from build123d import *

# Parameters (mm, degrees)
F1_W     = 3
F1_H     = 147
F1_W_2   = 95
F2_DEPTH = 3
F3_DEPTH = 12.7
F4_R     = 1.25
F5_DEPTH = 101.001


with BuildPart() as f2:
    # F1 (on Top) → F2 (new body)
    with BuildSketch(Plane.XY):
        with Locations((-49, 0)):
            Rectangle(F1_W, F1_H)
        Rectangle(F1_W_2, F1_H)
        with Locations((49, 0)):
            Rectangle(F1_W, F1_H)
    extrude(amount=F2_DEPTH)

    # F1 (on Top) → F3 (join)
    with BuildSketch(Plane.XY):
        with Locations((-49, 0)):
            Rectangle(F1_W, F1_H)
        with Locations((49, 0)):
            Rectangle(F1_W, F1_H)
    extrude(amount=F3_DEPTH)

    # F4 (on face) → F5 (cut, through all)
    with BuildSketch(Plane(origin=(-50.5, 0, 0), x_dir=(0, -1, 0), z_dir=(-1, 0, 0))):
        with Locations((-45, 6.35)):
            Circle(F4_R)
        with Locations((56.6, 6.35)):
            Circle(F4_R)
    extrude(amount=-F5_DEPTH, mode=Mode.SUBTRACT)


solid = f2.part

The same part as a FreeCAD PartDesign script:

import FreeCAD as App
import Part
import Sketcher
from FreeCAD import Vector
Q = App.Units.Quantity


def add_polygon(sketch, points):
    """Adds a closed chain of lines whose ends are joined by coincident constraints."""
    first, n = sketch.GeometryCount, len(points)
    for a, b in zip(points, points[1:] + points[:1]):
        sketch.addGeometry(Part.LineSegment(App.Vector(*a, 0), App.Vector(*b, 0)), False)
    for i in range(n):
        sketch.addConstraint(Sketcher.Constraint("Coincident", first + i, 2, first + (i + 1) % n, 1))

doc = App.newDocument("Part")
params = doc.addObject("Spreadsheet::Sheet", "Params")
for row, (alias, value) in enumerate([
    ("sketch1_width", "101 mm"),
    ("sketch1_height", "147 mm"),
    ("pad1_length", "3 mm"),
    ("sketch2_width", "3 mm"),
    ("sketch2_height", "147 mm"),
    ("pad2_length", "12.7 mm"),
    ("sketch3_diameter", "2.5 mm"),
], start=1):
    params.set(f"A{row}", alias)
    params.set(f"B{row}", "=" + value)
    params.setAlias(f"B{row}", alias)

body = doc.addObject("PartDesign::Body", "Body")

# Sketch on XY plane
sketch1 = doc.addObject("Sketcher::SketchObject", "Sketch")
body.addObject(sketch1)
sketch1.AttachmentSupport = (doc.XY_Plane, [""])
sketch1.MapMode = "FlatFace"
add_polygon(sketch1, [(-50, 74), (-50, -74), (50, -74), (50, 74)])  # lines 0-3
sketch1.addConstraint([
    Sketcher.Constraint("Vertical", 0),
    Sketcher.Constraint("Horizontal", 1),
    Sketcher.Constraint("Vertical", 2),
    Sketcher.Constraint("Horizontal", 3),
    Sketcher.Constraint("Symmetric", 0, 2, 2, 2, -1, 1),
    Sketcher.Constraint("DistanceX", 1, 1, 1, 2, Q("101 mm")),
    Sketcher.Constraint("DistanceY", 0, 2, 0, 1, Q("147 mm")),
])
sketch1.setExpression("Constraints[9]", "Params.sketch1_width")
sketch1.setExpression("Constraints[10]", "Params.sketch1_height")
pad1 = doc.addObject("PartDesign::Pad", "Pad")
body.addObject(pad1)
pad1.Profile = sketch1
pad1.setExpression("Length", "Params.pad1_length")

# Sketch on XY plane
sketch2 = doc.addObject("Sketcher::SketchObject", "Sketch001")
body.addObject(sketch2)
sketch2.AttachmentSupport = (doc.XY_Plane, [""])
sketch2.MapMode = "FlatFace"
add_polygon(sketch2, [(-50.5, 73.5), (-50.5, -73.5), (-47.5, -73.5), (-47.5, 73.5)])  # lines 0-3
add_polygon(sketch2, [(47.5, 73.5), (47.5, -73.5), (50.5, -73.5), (50.5, 73.5)])  # lines 4-7
sketch2.addConstraint([
    Sketcher.Constraint("Vertical", 0),
    Sketcher.Constraint("Horizontal", 1),
    Sketcher.Constraint("Vertical", 2),
    Sketcher.Constraint("Horizontal", 3),
    Sketcher.Constraint("Vertical", 4),
    Sketcher.Constraint("Horizontal", 5),
    Sketcher.Constraint("Vertical", 6),
    Sketcher.Constraint("Horizontal", 7),
    Sketcher.Constraint("Symmetric", 2, 2, 4, 2, -1, 1),
    Sketcher.Constraint("Symmetric", 0, 2, 6, 2, -1, 1),
    Sketcher.Constraint("Horizontal", 1, 2, 4, 2),
    Sketcher.Constraint("DistanceX", 1, 1, 1, 2, Q("3 mm")),
    Sketcher.Constraint("DistanceY", 0, 2, 0, 1, Q("147 mm")),
    Sketcher.Constraint("DistanceX", 1, 2, 4, 2, Q("95 mm")),
])
sketch2.setExpression("Constraints[19]", "Params.sketch2_width")
sketch2.setExpression("Constraints[20]", "Params.sketch2_height")
pad2 = doc.addObject("PartDesign::Pad", "Pad001")
body.addObject(pad2)
pad2.Profile = sketch2
pad2.setExpression("Length", "Params.pad2_length")

# Sketch on YZ plane
sketch3 = doc.addObject("Sketcher::SketchObject", "Sketch002")
body.addObject(sketch3)
sketch3.AttachmentSupport = (doc.YZ_Plane, [""])
sketch3.MapMode = "FlatFace"
sketch3.AttachmentOffset = App.Placement(Vector(0, 0, -50.5), App.Rotation())
sketch3.addGeometry([
    Part.Circle(Vector(45, 6.3, 0), Vector(0, 0, 1), 1.2),
    Part.Circle(Vector(-56.6, 6.3, 0), Vector(0, 0, 1), 1.2),
], False)
sketch3.addConstraint([
    Sketcher.Constraint("Equal", 0, 1),
    Sketcher.Constraint("Horizontal", 0, 3, 1, 3),
    Sketcher.Constraint("Diameter", 0, Q("2.5 mm")),
    Sketcher.Constraint("DistanceX", -1, 1, 0, 3, Q("45 mm")),
    Sketcher.Constraint("DistanceX", 1, 3, -1, 1, Q("56.6 mm")),
    Sketcher.Constraint("DistanceY", -1, 1, 0, 3, Q("6.35 mm")),
])
sketch3.setExpression("Constraints[2]", "Params.sketch3_diameter")
pocket1 = doc.addObject("PartDesign::Pocket", "Pocket")
body.addObject(pocket1)
pocket1.Profile = sketch3
pocket1.Type = "ThroughAll"
pocket1.Reversed = True

doc.recompute()
